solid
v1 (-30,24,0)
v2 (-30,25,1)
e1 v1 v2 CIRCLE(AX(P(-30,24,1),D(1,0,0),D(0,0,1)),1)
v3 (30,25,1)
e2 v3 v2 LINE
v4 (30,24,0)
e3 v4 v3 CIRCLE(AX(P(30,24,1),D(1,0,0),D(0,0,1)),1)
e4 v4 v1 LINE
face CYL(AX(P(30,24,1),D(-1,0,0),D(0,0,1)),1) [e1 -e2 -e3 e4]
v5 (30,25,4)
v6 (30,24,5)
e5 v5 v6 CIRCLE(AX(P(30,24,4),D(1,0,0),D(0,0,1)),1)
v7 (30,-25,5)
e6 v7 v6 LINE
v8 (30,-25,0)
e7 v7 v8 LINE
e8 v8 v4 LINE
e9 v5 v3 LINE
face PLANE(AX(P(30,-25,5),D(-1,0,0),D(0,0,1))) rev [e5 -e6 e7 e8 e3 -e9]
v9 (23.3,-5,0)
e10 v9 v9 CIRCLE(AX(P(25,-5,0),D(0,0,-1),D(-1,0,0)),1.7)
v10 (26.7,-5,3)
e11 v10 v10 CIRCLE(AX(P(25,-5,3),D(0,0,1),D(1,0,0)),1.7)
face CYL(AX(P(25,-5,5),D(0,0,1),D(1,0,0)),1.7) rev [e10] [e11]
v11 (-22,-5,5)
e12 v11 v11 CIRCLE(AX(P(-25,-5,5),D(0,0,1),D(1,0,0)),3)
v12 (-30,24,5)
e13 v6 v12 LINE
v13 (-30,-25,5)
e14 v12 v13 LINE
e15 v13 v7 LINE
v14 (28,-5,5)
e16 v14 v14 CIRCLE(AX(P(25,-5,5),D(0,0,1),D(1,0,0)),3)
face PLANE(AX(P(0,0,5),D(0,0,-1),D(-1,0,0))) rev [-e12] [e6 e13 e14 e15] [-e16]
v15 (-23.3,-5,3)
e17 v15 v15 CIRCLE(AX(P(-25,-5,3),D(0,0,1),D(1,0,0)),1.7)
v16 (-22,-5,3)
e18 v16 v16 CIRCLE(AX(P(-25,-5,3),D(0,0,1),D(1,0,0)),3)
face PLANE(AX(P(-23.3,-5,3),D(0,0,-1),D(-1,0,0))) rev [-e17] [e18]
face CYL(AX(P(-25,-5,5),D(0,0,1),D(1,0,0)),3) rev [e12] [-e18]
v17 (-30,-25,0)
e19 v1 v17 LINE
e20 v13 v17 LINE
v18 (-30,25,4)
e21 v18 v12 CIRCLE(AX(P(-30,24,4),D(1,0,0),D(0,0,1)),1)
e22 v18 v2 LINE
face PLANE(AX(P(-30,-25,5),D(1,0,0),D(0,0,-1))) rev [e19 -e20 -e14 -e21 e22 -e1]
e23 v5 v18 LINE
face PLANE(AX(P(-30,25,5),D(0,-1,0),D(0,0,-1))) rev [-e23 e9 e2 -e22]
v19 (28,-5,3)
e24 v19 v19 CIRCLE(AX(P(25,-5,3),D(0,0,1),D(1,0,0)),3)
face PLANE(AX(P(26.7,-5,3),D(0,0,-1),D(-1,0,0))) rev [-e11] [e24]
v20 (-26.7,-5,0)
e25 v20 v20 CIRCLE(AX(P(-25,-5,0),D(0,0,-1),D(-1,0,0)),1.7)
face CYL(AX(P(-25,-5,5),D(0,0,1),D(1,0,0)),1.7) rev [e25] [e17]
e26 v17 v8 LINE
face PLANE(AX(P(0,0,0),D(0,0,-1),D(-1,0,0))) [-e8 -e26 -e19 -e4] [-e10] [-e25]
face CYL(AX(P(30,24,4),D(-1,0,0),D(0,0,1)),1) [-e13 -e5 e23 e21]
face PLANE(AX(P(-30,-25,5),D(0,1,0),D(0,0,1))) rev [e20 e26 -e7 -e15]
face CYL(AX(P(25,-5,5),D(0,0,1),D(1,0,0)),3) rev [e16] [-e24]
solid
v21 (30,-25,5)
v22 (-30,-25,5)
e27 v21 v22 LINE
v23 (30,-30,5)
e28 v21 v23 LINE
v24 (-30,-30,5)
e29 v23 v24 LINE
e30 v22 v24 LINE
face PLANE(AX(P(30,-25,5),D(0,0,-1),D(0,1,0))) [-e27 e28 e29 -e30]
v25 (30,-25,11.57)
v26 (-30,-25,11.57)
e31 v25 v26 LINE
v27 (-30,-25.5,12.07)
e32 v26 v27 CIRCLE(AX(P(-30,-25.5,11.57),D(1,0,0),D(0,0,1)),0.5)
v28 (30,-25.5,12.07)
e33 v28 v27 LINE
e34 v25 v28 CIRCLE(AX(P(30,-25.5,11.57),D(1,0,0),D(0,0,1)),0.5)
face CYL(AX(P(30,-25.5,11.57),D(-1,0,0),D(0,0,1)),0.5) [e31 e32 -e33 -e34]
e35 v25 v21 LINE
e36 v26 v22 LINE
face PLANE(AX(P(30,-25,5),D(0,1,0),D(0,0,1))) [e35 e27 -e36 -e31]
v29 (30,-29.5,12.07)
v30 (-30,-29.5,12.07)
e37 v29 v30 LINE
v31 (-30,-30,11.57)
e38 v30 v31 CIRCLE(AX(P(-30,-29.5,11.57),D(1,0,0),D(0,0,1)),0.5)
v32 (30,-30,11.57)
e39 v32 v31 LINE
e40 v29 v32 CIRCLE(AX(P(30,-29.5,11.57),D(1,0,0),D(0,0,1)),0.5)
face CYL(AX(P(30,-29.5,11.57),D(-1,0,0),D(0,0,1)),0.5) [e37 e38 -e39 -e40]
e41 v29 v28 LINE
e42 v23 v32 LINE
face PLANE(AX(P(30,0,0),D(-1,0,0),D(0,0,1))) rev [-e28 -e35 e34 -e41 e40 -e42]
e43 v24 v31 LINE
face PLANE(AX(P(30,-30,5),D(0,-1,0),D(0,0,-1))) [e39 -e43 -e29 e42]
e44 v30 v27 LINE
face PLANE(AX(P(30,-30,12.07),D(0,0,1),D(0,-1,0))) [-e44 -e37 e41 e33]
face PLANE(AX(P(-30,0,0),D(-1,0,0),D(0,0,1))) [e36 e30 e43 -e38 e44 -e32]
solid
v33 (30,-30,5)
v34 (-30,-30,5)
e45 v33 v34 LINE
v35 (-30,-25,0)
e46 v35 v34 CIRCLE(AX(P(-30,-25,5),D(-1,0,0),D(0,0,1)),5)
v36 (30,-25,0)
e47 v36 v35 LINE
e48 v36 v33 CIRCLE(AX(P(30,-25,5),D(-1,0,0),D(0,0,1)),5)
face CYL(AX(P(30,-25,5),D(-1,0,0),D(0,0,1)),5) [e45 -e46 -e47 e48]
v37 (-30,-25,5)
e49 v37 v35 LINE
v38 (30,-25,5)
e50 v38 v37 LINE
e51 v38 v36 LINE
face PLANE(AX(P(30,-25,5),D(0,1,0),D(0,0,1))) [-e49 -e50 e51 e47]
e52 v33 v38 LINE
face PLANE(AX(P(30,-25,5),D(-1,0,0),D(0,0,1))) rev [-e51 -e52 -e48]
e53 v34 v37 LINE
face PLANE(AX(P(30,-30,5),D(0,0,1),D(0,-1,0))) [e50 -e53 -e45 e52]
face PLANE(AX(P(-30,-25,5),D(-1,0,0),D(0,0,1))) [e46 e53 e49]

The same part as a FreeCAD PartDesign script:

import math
import FreeCAD as App
import Part
import Sketcher

V = App.Vector
Q = App.Units.Quantity

doc = App.newDocument("Part")
body = doc.addObject("PartDesign::Body", "Body")

# Sketch on XY plane
sketch1 = body.newObject("Sketcher::SketchObject", "Sketch")
sketch1.AttachmentSupport = (doc.getObject("XY_Plane"), [""])
sketch1.MapMode = "FlatFace"
sketch1.addGeometry([
    Part.LineSegment(V(-30, 25, 0), V(-30, -25, 0)),
    Part.LineSegment(V(-30, -25, 0), V(30, -25, 0)),
    Part.LineSegment(V(30, -25, 0), V(30, 25, 0)),
    Part.LineSegment(V(30, 25, 0), V(-30, 25, 0)),
], False)
sketch1.addConstraint([
    Sketcher.Constraint("Coincident", 0, 2, 1, 1),
    Sketcher.Constraint("Coincident", 1, 2, 2, 1),
    Sketcher.Constraint("Coincident", 2, 2, 3, 1),
    Sketcher.Constraint("Coincident", 3, 2, 0, 1),
    Sketcher.Constraint("Vertical", 0),
    Sketcher.Constraint("Horizontal", 1),
    Sketcher.Constraint("Vertical", 2),
    Sketcher.Constraint("Horizontal", 3),
    Sketcher.Constraint("Symmetric", 0, 2, 2, 2, -1, 1),
    Sketcher.Constraint("DistanceX", 1, 1, 1, 2, Q("60 mm")),
    Sketcher.Constraint("DistanceY", 0, 2, 0, 1, Q("50 mm")),
])
pad1 = body.newObject("PartDesign::Pad", "Pad")
pad1.Profile = sketch1
pad1.Length = 5

# Sketch on XY plane
sketch2 = body.newObject("Sketcher::SketchObject", "Sketch001")
sketch2.AttachmentSupport = (doc.getObject("XY_Plane"), [""])
sketch2.MapMode = "FlatFace"
sketch2.AttachmentOffset = App.Placement(V(0, 0, 5), App.Rotation())
sketch2.addGeometry([
    Part.Circle(V(-25, -5, 0), V(0, 0, 1), 1.7),
    Part.Circle(V(25, -5, 0), V(0, 0, 1), 1.7),
], False)
sketch2.addConstraint([
    Sketcher.Constraint("Equal", 0, 1),
    Sketcher.Constraint("Symmetric", 0, 3, 1, 3, -2),
    Sketcher.Constraint("Diameter", 0, Q("3.4 mm")),
    Sketcher.Constraint("DistanceX", 0, 3, -1, 1, Q("25 mm")),
    Sketcher.Constraint("DistanceY", 0, 3, -1, 1, Q("5 mm")),
])
doc.recompute()
hole = body.newObject("PartDesign::Hole", "Hole")
hole.Profile = sketch2
hole.ThreadType = "None"
hole.Diameter = 3.4
hole.DepthType = "Dimension"
hole.Depth = 7
hole.DrillPoint = "Flat"
hole.HoleCutType = "Counterbore"
hole.HoleCutDiameter = 6
hole.HoleCutDepth = 2

# Sketch on YZ plane
sketch3 = body.newObject("Sketcher::SketchObject", "Sketch002")
sketch3.AttachmentSupport = (doc.getObject("YZ_Plane"), [""])
sketch3.MapMode = "FlatFace"
sketch3.AttachmentOffset = App.Placement(V(0, 0, -30), App.Rotation())
sketch3.addGeometry([
    Part.LineSegment(V(25, 5, 0), V(25, 4, 0)),  # 0
    Part.ArcOfCircle(Part.Circle(V(24, 4, 0), V(0, 0, 1), 1), math.radians(0), math.radians(90)),  # 1
    Part.LineSegment(V(24, 5, 0), V(25, 5, 0)),  # 2
    Part.LineSegment(V(25, 0, 0), V(24, 0, 0)),  # 3
    Part.ArcOfCircle(Part.Circle(V(24, 1, 0), V(0, 0, 1), 1), math.radians(-90), math.radians(0)),  # 4
    Part.LineSegment(V(25, 1, 0), V(25, 0, 0)),  # 5
], False)
sketch3.addConstraint([
    Sketcher.Constraint("Tangent", 0, 2, 1, 1),
    Sketcher.Constraint("Tangent", 1, 2, 2, 1),
    Sketcher.Constraint("Coincident", 2, 2, 0, 1),
    Sketcher.Constraint("Tangent", 3, 2, 4, 1),
    Sketcher.Constraint("Tangent", 4, 2, 5, 1),
    Sketcher.Constraint("Coincident", 5, 2, 3, 1),
    Sketcher.Constraint("Vertical", 0),
    Sketcher.Constraint("Horizontal", 2),
    Sketcher.Constraint("Horizontal", 3),
    Sketcher.Constraint("Vertical", 5),
    Sketcher.Constraint("Equal", 1, 4),
    Sketcher.Constraint("PointOnObject", 3, 2, -1),
    Sketcher.Constraint("Vertical", 1, 3, 4, 3),
    Sketcher.Constraint("Radius", 1, Q("1 mm")),
    Sketcher.Constraint("DistanceX", -1, 1, 1, 3, Q("24 mm")),
    Sketcher.Constraint("DistanceY", -1, 1, 1, 3, Q("4 mm")),
])
pocket1 = body.newObject("PartDesign::Pocket", "Pocket")
pocket1.Profile = sketch3
pocket1.Type = "ThroughAll"
pocket1.Reversed = True
body2 = doc.addObject("PartDesign::Body", "Body001")

# Sketch on YZ plane
sketch4 = body2.newObject("Sketcher::SketchObject", "Sketch003")
sketch4.AttachmentSupport = (doc.getObject("YZ_Plane001"), [""])
sketch4.MapMode = "FlatFace"
sketch4.AttachmentOffset = App.Placement(V(0, 0, -30), App.Rotation())
sketch4.addGeometry([
    Part.LineSegment(V(-25, 5, 0), V(-30, 5, 0)),
    Part.LineSegment(V(-30, 5, 0), V(-30, 12, 0)),
    Part.LineSegment(V(-30, 12, 0), V(-25, 12, 0)),
    Part.LineSegment(V(-25, 12, 0), V(-25, 5, 0)),
], False)
sketch4.addConstraint([
    Sketcher.Constraint("Coincident", 0, 2, 1, 1),
    Sketcher.Constraint("Coincident", 1, 2, 2, 1),
    Sketcher.Constraint("Coincident", 2, 2, 3, 1),
    Sketcher.Constraint("Coincident", 3, 2, 0, 1),
    Sketcher.Constraint("Horizontal", 0),
    Sketcher.Constraint("Vertical", 1),
    Sketcher.Constraint("Horizontal", 2),
    Sketcher.Constraint("Vertical", 3),
    Sketcher.Constraint("DistanceX", 0, 2, 0, 1, Q("5 mm")),
    Sketcher.Constraint("DistanceX", 0, 2, -1, 1, Q("30 mm")),
    Sketcher.Constraint("DistanceY", -1, 1, 0, 2, Q("5 mm")),
    Sketcher.Constraint("DistanceY", 1, 1, 1, 2, Q("7.07 mm")),
])
pad2 = body2.newObject("PartDesign::Pad", "Pad001")
pad2.Profile = sketch4
pad2.Length = 60

# Sketch on YZ plane
sketch5 = body2.newObject("Sketcher::SketchObject", "Sketch004")
sketch5.AttachmentSupport = (doc.getObject("YZ_Plane001"), [""])
sketch5.MapMode = "FlatFace"
sketch5.AttachmentOffset = App.Placement(V(0, 0, -30), App.Rotation())
sketch5.addGeometry([
    Part.LineSegment(V(-25, 12.07, 0), V(-25, 11.57, 0)),  # 0
    Part.ArcOfCircle(Part.Circle(V(-25.5, 11.57, 0), V(0, 0, 1), 0.5), math.radians(0), math.radians(90)),  # 1
    Part.LineSegment(V(-25.5, 12.07, 0), V(-25, 12.07, 0)),  # 2
    Part.LineSegment(V(-30, 12.07, 0), V(-29.5, 12.07, 0)),  # 3
    Part.ArcOfCircle(Part.Circle(V(-29.5, 11.57, 0), V(0, 0, 1), 0.5), math.radians(90), math.radians(180)),  # 4
    Part.LineSegment(V(-30, 11.57, 0), V(-30, 12.07, 0)),  # 5
], False)
sketch5.addConstraint([
    Sketcher.Constraint("Tangent", 0, 2, 1, 1),
    Sketcher.Constraint("Tangent", 1, 2, 2, 1),
    Sketcher.Constraint("Coincident", 2, 2, 0, 1),
    Sketcher.Constraint("Tangent", 3, 2, 4, 1),
    Sketcher.Constraint("Tangent", 4, 2, 5, 1),
    Sketcher.Constraint("Coincident", 5, 2, 3, 1),
    Sketcher.Constraint("Vertical", 0),
    Sketcher.Constraint("Horizontal", 2),
    Sketcher.Constraint("Horizontal", 3),
    Sketcher.Constraint("Vertical", 5),
    Sketcher.Constraint("Equal", 1, 4),
    Sketcher.Constraint("Horizontal", 1, 3, 4, 3),
    Sketcher.Constraint("Radius", 1, Q("0.5 mm")),
    Sketcher.Constraint("DistanceX", 0, 2, -1, 1, Q("25 mm")),
    Sketcher.Constraint("DistanceX", 4, 2, -1, 1, Q("30 mm")),
    Sketcher.Constraint("DistanceY", -1, 1, 1, 3, Q("11.57 mm")),
])
pocket2 = body2.newObject("PartDesign::Pocket", "Pocket001")
pocket2.Profile = sketch5
pocket2.Length = 60
pocket2.Reversed = True
body3 = doc.addObject("PartDesign::Body", "Body002")

# Sketch on YZ plane
sketch6 = body3.newObject("Sketcher::SketchObject", "Sketch005")
sketch6.AttachmentSupport = (doc.getObject("YZ_Plane002"), [""])
sketch6.MapMode = "FlatFace"
sketch6.AttachmentOffset = App.Placement(V(0, 0, -30), App.Rotation())
sketch6.addGeometry([
    Part.LineSegment(V(-30, 5, 0), V(-25, 5, 0)),
    Part.LineSegment(V(-25, 5, 0), V(-25, 0, 0)),
    Part.ArcOfCircle(Part.Circle(V(-25, 5, 0), V(0, 0, 1), 5), math.radians(180), math.radians(270)),
], False)
sketch6.addConstraint([
    Sketcher.Constraint("Coincident", 0, 2, 1, 1),
    Sketcher.Constraint("Coincident", 1, 2, 2, 2),
    Sketcher.Constraint("Coincident", 2, 1, 0, 1),
    Sketcher.Constraint("Horizontal", 0),
    Sketcher.Constraint("Vertical", 1),
    Sketcher.Constraint("Coincident", 0, 2, 2, 3),
    Sketcher.Constraint("PointOnObject", 1, 2, -1),
    Sketcher.Constraint("Radius", 2, Q("5 mm")),
    Sketcher.Constraint("DistanceX", 2, 3, -1, 1, Q("25 mm")),
])
pad3 = body3.newObject("PartDesign::Pad", "Pad002")
pad3.Profile = sketch6
pad3.Length = 60

doc.recompute()
